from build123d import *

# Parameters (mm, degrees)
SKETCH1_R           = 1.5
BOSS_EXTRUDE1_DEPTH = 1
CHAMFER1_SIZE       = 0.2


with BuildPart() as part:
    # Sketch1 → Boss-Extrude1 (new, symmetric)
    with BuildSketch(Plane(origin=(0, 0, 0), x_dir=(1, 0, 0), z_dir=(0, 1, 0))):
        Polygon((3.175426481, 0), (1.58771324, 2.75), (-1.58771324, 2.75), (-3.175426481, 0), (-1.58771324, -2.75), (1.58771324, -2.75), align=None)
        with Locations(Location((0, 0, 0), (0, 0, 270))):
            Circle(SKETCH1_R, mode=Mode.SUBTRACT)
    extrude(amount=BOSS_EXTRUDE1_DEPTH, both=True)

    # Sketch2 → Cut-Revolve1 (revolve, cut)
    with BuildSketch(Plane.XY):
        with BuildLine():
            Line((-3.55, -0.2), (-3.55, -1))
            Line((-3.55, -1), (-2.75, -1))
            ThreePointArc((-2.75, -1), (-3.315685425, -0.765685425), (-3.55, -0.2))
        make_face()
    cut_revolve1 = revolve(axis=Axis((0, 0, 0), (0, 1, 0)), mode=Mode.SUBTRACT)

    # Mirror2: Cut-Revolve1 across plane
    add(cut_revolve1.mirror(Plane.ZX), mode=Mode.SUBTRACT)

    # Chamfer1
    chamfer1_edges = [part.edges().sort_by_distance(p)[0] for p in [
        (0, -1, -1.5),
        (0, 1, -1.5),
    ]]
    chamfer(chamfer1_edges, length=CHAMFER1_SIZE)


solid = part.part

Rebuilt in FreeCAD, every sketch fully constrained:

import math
import FreeCAD as App
import Part
import Sketcher
Q = App.Units.Quantity


def edges_at(feature, points):
    """Names of the edges that pass closest to the given points."""
    edges = feature.Shape.Edges
    near = lambda p: min(range(len(edges)), key=lambda i: edges[i].distToShape(Part.Vertex(*p))[0])
    return sorted({f"Edge{near(p) + 1}" for p in points})


def add_polygon(sketch, points):
    """Adds a closed chain of lines whose ends are joined by coincident constraints."""
    first, n = sketch.GeometryCount, len(points)
    for a, b in zip(points, points[1:] + points[:1]):
        sketch.addGeometry(Part.LineSegment(App.Vector(*a, 0), App.Vector(*b, 0)), False)
    for i in range(n):
        sketch.addConstraint(Sketcher.Constraint("Coincident", first + i, 2, first + (i + 1) % n, 1))

doc = App.newDocument("Part")
body = doc.addObject("PartDesign::Body", "Body")

# Sketch on XZ plane
sketch1 = body.newObject("Sketcher::SketchObject", "Sketch")
sketch1.AttachmentSupport = (doc.getObject("XZ_Plane"), [""])
sketch1.MapMode = "FlatFace"
add_polygon(sketch1, [(3.2, 0), (1.6, -2.8), (-1.6, -2.8), (-3.2, 0), (-1.6, 2.8), (1.6, 2.8)])  # lines 0-5
sketch1.addGeometry(Part.Circle(App.Vector(0, 0, 0), App.Vector(0, 0, 1), 1.5), False)  # 6
sketch1.addConstraint(Sketcher.Constraint("Horizontal", 1))
sketch1.addConstraint(Sketcher.Constraint("Horizontal", 4))
sketch1.addConstraint(Sketcher.Constraint("Coincident", 6, 3, -1, 1))
sketch1.addConstraint(Sketcher.Constraint("Symmetric", 0, 2, 3, 2, -1, 1))
sketch1.addConstraint(Sketcher.Constraint("Symmetric", 2, 2, 5, 2, -1, 1))
sketch1.addConstraint(Sketcher.Constraint("PointOnObject", 2, 2, -1))
sketch1.addConstraint(Sketcher.Constraint("Parallel", 2, 5))
sketch1.addConstraint(Sketcher.Constraint("Vertical", 1, 2, 3, 2))
sketch1.addConstraint(Sketcher.Constraint("Diameter", 6, Q("3 mm")))
sketch1.addConstraint(Sketcher.Constraint("Angle", 0, Q("-120 deg")))
sketch1.addConstraint(Sketcher.Constraint("DistanceY", 1, 2, 3, 2, Q("5.5 mm")))
sketch1.addConstraint(Sketcher.Constraint("DistanceX", 1, 2, 1, 1, Q("3.175426 mm")))
pad1 = body.newObject("PartDesign::Pad", "Pad")
pad1.Profile = sketch1
pad1.Length = 2
pad1.Midplane = True

# Sketch on XY plane
sketch2 = body.newObject("Sketcher::SketchObject", "Sketch001")
sketch2.AttachmentSupport = (doc.getObject("XY_Plane"), [""])
sketch2.MapMode = "FlatFace"
sketch2.addGeometry(Part.LineSegment(App.Vector(-3.5, -0.2, 0), App.Vector(-3.5, -1, 0)), False)
sketch2.addGeometry(Part.LineSegment(App.Vector(-3.5, -1, 0), App.Vector(-2.8, -1, 0)), False)
sketch2.addGeometry(Part.ArcOfCircle(Part.Circle(App.Vector(-2.8, -0.2, 0), App.Vector(0, 0, 1), 0.8), math.radians(180), math.radians(270)), False)
sketch2.addConstraint(Sketcher.Constraint("Coincident", 0, 2, 1, 1))
sketch2.addConstraint(Sketcher.Constraint("Tangent", 1, 2, 2, 2))
sketch2.addConstraint(Sketcher.Constraint("Tangent", 2, 1, 0, 1))
sketch2.addConstraint(Sketcher.Constraint("Vertical", 0))
sketch2.addConstraint(Sketcher.Constraint("Horizontal", 1))
sketch2.addConstraint(Sketcher.Constraint("Radius", 2, Q("0.8 mm")))
sketch2.addConstraint(Sketcher.Constraint("DistanceY", 0, 2, -1, 1, Q("1 mm")))
sketch2.addConstraint(Sketcher.Constraint("DistanceX", 2, 3, -1, 1, Q("2.75 mm")))
groove = body.newObject("PartDesign::Groove", "Groove")
groove.Profile = sketch2
groove.ReferenceAxis = (sketch2, ["V_Axis"])
groove.Angle = 360
doc.recompute()

mirrored = body.newObject("PartDesign::Mirrored", "Mirrored")
mirrored.Originals = [groove]
mirrored.MirrorPlane = (doc.getObject("XZ_Plane"), [""])
body.Tip = mirrored
doc.recompute()

chamfer = body.newObject("PartDesign::Chamfer", "Chamfer")
chamfer.Base = (mirrored, edges_at(mirrored, [(0, -1, -1.5), (0, 1, -1.5)]))
chamfer.Size = 0.2

doc.recompute()
